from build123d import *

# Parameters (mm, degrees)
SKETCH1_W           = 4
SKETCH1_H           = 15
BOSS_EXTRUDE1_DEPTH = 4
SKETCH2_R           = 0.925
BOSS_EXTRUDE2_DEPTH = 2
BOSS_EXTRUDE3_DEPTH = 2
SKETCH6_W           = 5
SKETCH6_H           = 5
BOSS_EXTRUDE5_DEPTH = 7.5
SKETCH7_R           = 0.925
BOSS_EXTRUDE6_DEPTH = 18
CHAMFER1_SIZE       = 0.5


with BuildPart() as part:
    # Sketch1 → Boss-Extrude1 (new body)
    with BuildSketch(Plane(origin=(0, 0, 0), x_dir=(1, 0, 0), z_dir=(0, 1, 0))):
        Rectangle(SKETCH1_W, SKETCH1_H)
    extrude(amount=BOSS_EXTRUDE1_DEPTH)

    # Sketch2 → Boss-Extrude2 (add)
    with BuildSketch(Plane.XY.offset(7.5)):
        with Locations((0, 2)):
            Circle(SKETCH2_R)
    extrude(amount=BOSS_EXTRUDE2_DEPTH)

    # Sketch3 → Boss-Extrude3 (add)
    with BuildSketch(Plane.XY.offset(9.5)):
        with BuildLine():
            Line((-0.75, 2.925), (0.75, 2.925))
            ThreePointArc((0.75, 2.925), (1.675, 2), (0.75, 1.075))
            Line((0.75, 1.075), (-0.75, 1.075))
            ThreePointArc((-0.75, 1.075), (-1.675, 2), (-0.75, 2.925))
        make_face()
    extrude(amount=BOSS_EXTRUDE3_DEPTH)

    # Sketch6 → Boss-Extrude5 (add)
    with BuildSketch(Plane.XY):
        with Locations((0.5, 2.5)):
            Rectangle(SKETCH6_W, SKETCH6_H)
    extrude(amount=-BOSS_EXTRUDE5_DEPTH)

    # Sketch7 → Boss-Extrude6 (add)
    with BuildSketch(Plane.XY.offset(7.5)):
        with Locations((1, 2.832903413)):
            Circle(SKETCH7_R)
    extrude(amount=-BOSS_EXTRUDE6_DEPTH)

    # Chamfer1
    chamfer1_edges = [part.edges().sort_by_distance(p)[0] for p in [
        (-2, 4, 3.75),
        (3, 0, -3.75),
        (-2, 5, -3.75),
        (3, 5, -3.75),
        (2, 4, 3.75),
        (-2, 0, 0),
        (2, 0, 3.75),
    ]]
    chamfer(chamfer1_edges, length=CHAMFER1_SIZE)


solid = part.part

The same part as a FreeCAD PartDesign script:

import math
import FreeCAD as App
import Part
import Sketcher
Q = App.Units.Quantity


def edges_at(feature, points):
    """Names of the edges that pass closest to the given points."""
    edges = feature.Shape.Edges
    near = lambda p: min(range(len(edges)), key=lambda i: edges[i].distToShape(Part.Vertex(*p))[0])
    return sorted({f"Edge{near(p) + 1}" for p in points})

doc = App.newDocument("Part")
body = doc.addObject("PartDesign::Body", "Body")

sketch1 = body.newObject("Sketcher::SketchObject", "Sketch")
sketch1.AttachmentSupport = (doc.getObject("XZ_Plane"), [""])
sketch1.MapMode = "FlatFace"
sketch1.addGeometry([
    Part.LineSegment(App.Vector(-2, -7.5, 0), App.Vector(-2, 7.5, 0)),
    Part.LineSegment(App.Vector(-2, 7.5, 0), App.Vector(2, 7.5, 0)),
    Part.LineSegment(App.Vector(2, 7.5, 0), App.Vector(2, -7.5, 0)),
    Part.LineSegment(App.Vector(2, -7.5, 0), App.Vector(-2, -7.5, 0)),
], False)
sketch1.addConstraint([
    Sketcher.Constraint("Coincident", 0, 2, 1, 1),
    Sketcher.Constraint("Coincident", 1, 2, 2, 1),
    Sketcher.Constraint("Coincident", 2, 2, 3, 1),
    Sketcher.Constraint("Coincident", 3, 2, 0, 1),
    Sketcher.Constraint("Vertical", 0),
    Sketcher.Constraint("Horizontal", 1),
    Sketcher.Constraint("Vertical", 2),
    Sketcher.Constraint("Horizontal", 3),
    Sketcher.Constraint("Symmetric", 0, 2, 2, 2, -1, 1),
    Sketcher.Constraint("DistanceX", 1, 1, 1, 2, Q("4 mm")),
    Sketcher.Constraint("DistanceY", 0, 1, 0, 2, Q("15 mm")),
])
pad1 = body.newObject("PartDesign::Pad", "Pad")
pad1.Profile = sketch1
pad1.Length = 4
pad1.Reversed = True

sketch2 = body.newObject("Sketcher::SketchObject", "Sketch001")
sketch2.AttachmentSupport = (doc.getObject("XY_Plane"), [""])
sketch2.MapMode = "FlatFace"
sketch2.AttachmentOffset = App.Placement(App.Vector(0, 0, 7.5), App.Rotation())
sketch2.addGeometry(Part.Circle(App.Vector(0, 2, 0), App.Vector(0, 0, 1), 0.925), False)
sketch2.addConstraint([
    Sketcher.Constraint("PointOnObject", 0, 3, -2),
    Sketcher.Constraint("Diameter", 0, Q("1.85 mm")),
    Sketcher.Constraint("DistanceY", -1, 1, 0, 3, Q("2 mm")),
])
pad2 = body.newObject("PartDesign::Pad", "Pad001")
pad2.Profile = sketch2
pad2.Length = 2

sketch3 = body.newObject("Sketcher::SketchObject", "Sketch002")
sketch3.AttachmentSupport = (doc.getObject("XY_Plane"), [""])
sketch3.MapMode = "FlatFace"
sketch3.AttachmentOffset = App.Placement(App.Vector(0, 0, 9.5), App.Rotation())
sketch3.addGeometry([
    Part.LineSegment(App.Vector(0.75, 2.925, 0), App.Vector(-0.75, 2.925, 0)),
    Part.ArcOfCircle(Part.Circle(App.Vector(-0.75, 2, 0), App.Vector(0, 0, 1), 0.925), math.radians(90), math.radians(270)),
    Part.LineSegment(App.Vector(-0.75, 1.075, 0), App.Vector(0.75, 1.075, 0)),
    Part.ArcOfCircle(Part.Circle(App.Vector(0.75, 2, 0), App.Vector(0, 0, 1), 0.925), math.radians(-90), math.radians(90)),
], False)
sketch3.addConstraint([
    Sketcher.Constraint("Tangent", 0, 2, 1, 1),
    Sketcher.Constraint("Tangent", 1, 2, 2, 1),
    Sketcher.Constraint("Tangent", 2, 2, 3, 1),
    Sketcher.Constraint("Tangent", 3, 2, 0, 1),
    Sketcher.Constraint("Horizontal", 0),
    Sketcher.Constraint("Horizontal", 2),
    Sketcher.Constraint("DistanceX", 0, 2, 0, 1, Q("1.5 mm")),
    Sketcher.Constraint("DistanceY", -1, 1, 1, 3, Q("2 mm")),
    Sketcher.Constraint("Radius", 1, Q("0.925 mm")),
    Sketcher.Constraint("DistanceX", 1, 3, -1, 1, Q("0.75 mm")),
])
pad3 = body.newObject("PartDesign::Pad", "Pad002")
pad3.Profile = sketch3
pad3.Length = 2

sketch4 = body.newObject("Sketcher::SketchObject", "Sketch003")
sketch4.AttachmentSupport = (doc.getObject("XY_Plane"), [""])
sketch4.MapMode = "FlatFace"
sketch4.addGeometry([
    Part.LineSegment(App.Vector(-2, 5, 0), App.Vector(-2, 0, 0)),
    Part.LineSegment(App.Vector(-2, 0, 0), App.Vector(3, 0, 0)),
    Part.LineSegment(App.Vector(3, 0, 0), App.Vector(3, 5, 0)),
    Part.LineSegment(App.Vector(3, 5, 0), App.Vector(-2, 5, 0)),
], False)
sketch4.addConstraint([
    Sketcher.Constraint("Coincident", 0, 2, 1, 1),
    Sketcher.Constraint("Coincident", 1, 2, 2, 1),
    Sketcher.Constraint("Coincident", 2, 2, 3, 1),
    Sketcher.Constraint("Coincident", 3, 2, 0, 1),
    Sketcher.Constraint("Vertical", 0),
    Sketcher.Constraint("Horizontal", 1),
    Sketcher.Constraint("Vertical", 2),
    Sketcher.Constraint("Horizontal", 3),
    Sketcher.Constraint("PointOnObject", 0, 2, -1),
    Sketcher.Constraint("Equal", 3, 0),
    Sketcher.Constraint("DistanceX", 1, 1, 1, 2, Q("5 mm")),
    Sketcher.Constraint("DistanceX", 0, 2, -1, 1, Q("2 mm")),
])
pad4 = body.newObject("PartDesign::Pad", "Pad003")
pad4.Profile = sketch4
pad4.Length = 7.5
pad4.Reversed = True

sketch5 = body.newObject("Sketcher::SketchObject", "Sketch004")
sketch5.AttachmentSupport = (doc.getObject("XY_Plane"), [""])
sketch5.MapMode = "FlatFace"
sketch5.AttachmentOffset = App.Placement(App.Vector(0, 0, 7.5), App.Rotation())
sketch5.addGeometry(Part.Circle(App.Vector(1, 2.832903, 0), App.Vector(0, 0, 1), 0.925), False)
sketch5.addConstraint([
    Sketcher.Constraint("Diameter", 0, Q("1.85 mm")),
    Sketcher.Constraint("DistanceX", -1, 1, 0, 3, Q("1 mm")),
    Sketcher.Constraint("DistanceY", -1, 1, 0, 3, Q("2.832903 mm")),
])
pad5 = body.newObject("PartDesign::Pad", "Pad004")
pad5.Profile = sketch5
pad5.Length = 18
pad5.Reversed = True
doc.recompute()

chamfer = body.newObject("PartDesign::Chamfer", "Chamfer")
chamfer.Base = (pad5, edges_at(pad5, [
    (-2, 4, 3.75),
    (3, 0, -3.75),
    (-2, 5, -3.75),
    (3, 5, -3.75),
    (2, 4, 3.75),
    (-2, 0, 0),
    (2, 0, 3.75),
]))
chamfer.Size = 0.5

doc.recompute()
